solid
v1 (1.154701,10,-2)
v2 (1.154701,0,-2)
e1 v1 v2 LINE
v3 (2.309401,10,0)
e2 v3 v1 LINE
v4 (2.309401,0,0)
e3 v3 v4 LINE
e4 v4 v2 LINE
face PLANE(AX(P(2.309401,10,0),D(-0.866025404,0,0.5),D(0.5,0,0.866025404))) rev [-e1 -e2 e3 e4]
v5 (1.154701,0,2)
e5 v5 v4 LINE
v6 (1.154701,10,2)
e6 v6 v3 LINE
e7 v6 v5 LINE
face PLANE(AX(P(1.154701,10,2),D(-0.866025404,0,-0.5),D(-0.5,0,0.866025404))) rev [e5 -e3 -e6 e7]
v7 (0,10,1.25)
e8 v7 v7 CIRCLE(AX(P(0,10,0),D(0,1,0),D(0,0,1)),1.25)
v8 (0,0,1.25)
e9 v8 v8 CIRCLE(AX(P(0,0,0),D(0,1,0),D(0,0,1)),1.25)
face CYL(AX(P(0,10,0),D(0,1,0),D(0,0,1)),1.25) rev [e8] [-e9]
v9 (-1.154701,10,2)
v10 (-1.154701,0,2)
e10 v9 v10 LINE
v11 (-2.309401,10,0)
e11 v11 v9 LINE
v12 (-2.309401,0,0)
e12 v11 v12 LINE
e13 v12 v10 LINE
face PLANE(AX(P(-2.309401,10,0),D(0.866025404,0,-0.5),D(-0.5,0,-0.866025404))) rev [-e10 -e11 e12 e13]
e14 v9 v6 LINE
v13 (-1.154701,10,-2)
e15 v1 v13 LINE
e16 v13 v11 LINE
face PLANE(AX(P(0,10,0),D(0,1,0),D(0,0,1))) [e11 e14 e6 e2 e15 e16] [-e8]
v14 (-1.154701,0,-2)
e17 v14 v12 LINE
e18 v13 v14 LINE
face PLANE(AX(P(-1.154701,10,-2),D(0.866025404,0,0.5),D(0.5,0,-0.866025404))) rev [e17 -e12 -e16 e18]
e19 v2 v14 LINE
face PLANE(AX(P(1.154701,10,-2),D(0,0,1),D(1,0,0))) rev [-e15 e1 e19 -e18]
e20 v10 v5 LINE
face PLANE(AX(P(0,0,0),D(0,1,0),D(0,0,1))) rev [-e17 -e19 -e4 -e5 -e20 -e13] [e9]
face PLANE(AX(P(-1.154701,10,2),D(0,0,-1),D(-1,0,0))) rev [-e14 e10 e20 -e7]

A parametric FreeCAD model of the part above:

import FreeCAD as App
import Part
import Sketcher

V = App.Vector
Q = App.Units.Quantity


def add_polygon(sketch, points):
    """Adds a closed chain of lines whose ends are joined by coincident constraints."""
    first, n = sketch.GeometryCount, len(points)
    for a, b in zip(points, points[1:] + points[:1]):
        sketch.addGeometry(Part.LineSegment(App.Vector(*a, 0), App.Vector(*b, 0)), False)
    for i in range(n):
        sketch.addConstraint(Sketcher.Constraint("Coincident", first + i, 2, first + (i + 1) % n, 1))

doc = App.newDocument("Part")
body = doc.addObject("PartDesign::Body", "Body")

# Sketch on XZ plane
sketch1 = body.newObject("Sketcher::SketchObject", "Sketch")
sketch1.AttachmentSupport = (doc.getObject("XZ_Plane"), [""])
sketch1.MapMode = "FlatFace"
add_polygon(sketch1, [(2.3, 0), (1.2, -2), (-1.2, -2), (-2.3, 0), (-1.2, 2), (1.2, 2)])  # lines 0-5
sketch1.addConstraint(Sketcher.Constraint("Horizontal", 1))
sketch1.addConstraint(Sketcher.Constraint("Horizontal", 4))
sketch1.addConstraint(Sketcher.Constraint("Symmetric", 0, 2, 3, 2, -1, 1))
sketch1.addConstraint(Sketcher.Constraint("Symmetric", 2, 2, 5, 2, -1, 1))
sketch1.addConstraint(Sketcher.Constraint("PointOnObject", 2, 2, -1))
sketch1.addConstraint(Sketcher.Constraint("Parallel", 2, 5))
sketch1.addConstraint(Sketcher.Constraint("Vertical", 1, 2, 3, 2))
sketch1.addConstraint(Sketcher.Constraint("Angle", 0, Q("-120 deg")))
sketch1.addConstraint(Sketcher.Constraint("DistanceY", 0, 2, -1, 1, Q("2 mm")))
sketch1.addConstraint(Sketcher.Constraint("DistanceX", 1, 2, 1, 1, Q("2.309401 mm")))
pad1 = body.newObject("PartDesign::Pad", "Pad")
pad1.Profile = sketch1
pad1.Length = 10
pad1.Reversed = True

# Sketch on XZ plane
sketch2 = body.newObject("Sketcher::SketchObject", "Sketch001")
sketch2.AttachmentSupport = (doc.getObject("XZ_Plane"), [""])
sketch2.MapMode = "FlatFace"
sketch2.AttachmentOffset = App.Placement(V(0, 0, -10), App.Rotation())
sketch2.addGeometry(Part.Circle(V(0, 0, 0), V(0, 0, 1), 1.2), False)
sketch2.addConstraint(Sketcher.Constraint("Coincident", 0, 3, -1, 1))
sketch2.addConstraint(Sketcher.Constraint("Diameter", 0, Q("2.5 mm")))
doc.recompute()
hole = body.newObject("PartDesign::Hole", "Hole")
hole.Profile = sketch2
hole.ThreadType = "None"
hole.Diameter = 2.5
hole.DepthType = "ThroughAll"
hole.Reversed = True

doc.recompute()
